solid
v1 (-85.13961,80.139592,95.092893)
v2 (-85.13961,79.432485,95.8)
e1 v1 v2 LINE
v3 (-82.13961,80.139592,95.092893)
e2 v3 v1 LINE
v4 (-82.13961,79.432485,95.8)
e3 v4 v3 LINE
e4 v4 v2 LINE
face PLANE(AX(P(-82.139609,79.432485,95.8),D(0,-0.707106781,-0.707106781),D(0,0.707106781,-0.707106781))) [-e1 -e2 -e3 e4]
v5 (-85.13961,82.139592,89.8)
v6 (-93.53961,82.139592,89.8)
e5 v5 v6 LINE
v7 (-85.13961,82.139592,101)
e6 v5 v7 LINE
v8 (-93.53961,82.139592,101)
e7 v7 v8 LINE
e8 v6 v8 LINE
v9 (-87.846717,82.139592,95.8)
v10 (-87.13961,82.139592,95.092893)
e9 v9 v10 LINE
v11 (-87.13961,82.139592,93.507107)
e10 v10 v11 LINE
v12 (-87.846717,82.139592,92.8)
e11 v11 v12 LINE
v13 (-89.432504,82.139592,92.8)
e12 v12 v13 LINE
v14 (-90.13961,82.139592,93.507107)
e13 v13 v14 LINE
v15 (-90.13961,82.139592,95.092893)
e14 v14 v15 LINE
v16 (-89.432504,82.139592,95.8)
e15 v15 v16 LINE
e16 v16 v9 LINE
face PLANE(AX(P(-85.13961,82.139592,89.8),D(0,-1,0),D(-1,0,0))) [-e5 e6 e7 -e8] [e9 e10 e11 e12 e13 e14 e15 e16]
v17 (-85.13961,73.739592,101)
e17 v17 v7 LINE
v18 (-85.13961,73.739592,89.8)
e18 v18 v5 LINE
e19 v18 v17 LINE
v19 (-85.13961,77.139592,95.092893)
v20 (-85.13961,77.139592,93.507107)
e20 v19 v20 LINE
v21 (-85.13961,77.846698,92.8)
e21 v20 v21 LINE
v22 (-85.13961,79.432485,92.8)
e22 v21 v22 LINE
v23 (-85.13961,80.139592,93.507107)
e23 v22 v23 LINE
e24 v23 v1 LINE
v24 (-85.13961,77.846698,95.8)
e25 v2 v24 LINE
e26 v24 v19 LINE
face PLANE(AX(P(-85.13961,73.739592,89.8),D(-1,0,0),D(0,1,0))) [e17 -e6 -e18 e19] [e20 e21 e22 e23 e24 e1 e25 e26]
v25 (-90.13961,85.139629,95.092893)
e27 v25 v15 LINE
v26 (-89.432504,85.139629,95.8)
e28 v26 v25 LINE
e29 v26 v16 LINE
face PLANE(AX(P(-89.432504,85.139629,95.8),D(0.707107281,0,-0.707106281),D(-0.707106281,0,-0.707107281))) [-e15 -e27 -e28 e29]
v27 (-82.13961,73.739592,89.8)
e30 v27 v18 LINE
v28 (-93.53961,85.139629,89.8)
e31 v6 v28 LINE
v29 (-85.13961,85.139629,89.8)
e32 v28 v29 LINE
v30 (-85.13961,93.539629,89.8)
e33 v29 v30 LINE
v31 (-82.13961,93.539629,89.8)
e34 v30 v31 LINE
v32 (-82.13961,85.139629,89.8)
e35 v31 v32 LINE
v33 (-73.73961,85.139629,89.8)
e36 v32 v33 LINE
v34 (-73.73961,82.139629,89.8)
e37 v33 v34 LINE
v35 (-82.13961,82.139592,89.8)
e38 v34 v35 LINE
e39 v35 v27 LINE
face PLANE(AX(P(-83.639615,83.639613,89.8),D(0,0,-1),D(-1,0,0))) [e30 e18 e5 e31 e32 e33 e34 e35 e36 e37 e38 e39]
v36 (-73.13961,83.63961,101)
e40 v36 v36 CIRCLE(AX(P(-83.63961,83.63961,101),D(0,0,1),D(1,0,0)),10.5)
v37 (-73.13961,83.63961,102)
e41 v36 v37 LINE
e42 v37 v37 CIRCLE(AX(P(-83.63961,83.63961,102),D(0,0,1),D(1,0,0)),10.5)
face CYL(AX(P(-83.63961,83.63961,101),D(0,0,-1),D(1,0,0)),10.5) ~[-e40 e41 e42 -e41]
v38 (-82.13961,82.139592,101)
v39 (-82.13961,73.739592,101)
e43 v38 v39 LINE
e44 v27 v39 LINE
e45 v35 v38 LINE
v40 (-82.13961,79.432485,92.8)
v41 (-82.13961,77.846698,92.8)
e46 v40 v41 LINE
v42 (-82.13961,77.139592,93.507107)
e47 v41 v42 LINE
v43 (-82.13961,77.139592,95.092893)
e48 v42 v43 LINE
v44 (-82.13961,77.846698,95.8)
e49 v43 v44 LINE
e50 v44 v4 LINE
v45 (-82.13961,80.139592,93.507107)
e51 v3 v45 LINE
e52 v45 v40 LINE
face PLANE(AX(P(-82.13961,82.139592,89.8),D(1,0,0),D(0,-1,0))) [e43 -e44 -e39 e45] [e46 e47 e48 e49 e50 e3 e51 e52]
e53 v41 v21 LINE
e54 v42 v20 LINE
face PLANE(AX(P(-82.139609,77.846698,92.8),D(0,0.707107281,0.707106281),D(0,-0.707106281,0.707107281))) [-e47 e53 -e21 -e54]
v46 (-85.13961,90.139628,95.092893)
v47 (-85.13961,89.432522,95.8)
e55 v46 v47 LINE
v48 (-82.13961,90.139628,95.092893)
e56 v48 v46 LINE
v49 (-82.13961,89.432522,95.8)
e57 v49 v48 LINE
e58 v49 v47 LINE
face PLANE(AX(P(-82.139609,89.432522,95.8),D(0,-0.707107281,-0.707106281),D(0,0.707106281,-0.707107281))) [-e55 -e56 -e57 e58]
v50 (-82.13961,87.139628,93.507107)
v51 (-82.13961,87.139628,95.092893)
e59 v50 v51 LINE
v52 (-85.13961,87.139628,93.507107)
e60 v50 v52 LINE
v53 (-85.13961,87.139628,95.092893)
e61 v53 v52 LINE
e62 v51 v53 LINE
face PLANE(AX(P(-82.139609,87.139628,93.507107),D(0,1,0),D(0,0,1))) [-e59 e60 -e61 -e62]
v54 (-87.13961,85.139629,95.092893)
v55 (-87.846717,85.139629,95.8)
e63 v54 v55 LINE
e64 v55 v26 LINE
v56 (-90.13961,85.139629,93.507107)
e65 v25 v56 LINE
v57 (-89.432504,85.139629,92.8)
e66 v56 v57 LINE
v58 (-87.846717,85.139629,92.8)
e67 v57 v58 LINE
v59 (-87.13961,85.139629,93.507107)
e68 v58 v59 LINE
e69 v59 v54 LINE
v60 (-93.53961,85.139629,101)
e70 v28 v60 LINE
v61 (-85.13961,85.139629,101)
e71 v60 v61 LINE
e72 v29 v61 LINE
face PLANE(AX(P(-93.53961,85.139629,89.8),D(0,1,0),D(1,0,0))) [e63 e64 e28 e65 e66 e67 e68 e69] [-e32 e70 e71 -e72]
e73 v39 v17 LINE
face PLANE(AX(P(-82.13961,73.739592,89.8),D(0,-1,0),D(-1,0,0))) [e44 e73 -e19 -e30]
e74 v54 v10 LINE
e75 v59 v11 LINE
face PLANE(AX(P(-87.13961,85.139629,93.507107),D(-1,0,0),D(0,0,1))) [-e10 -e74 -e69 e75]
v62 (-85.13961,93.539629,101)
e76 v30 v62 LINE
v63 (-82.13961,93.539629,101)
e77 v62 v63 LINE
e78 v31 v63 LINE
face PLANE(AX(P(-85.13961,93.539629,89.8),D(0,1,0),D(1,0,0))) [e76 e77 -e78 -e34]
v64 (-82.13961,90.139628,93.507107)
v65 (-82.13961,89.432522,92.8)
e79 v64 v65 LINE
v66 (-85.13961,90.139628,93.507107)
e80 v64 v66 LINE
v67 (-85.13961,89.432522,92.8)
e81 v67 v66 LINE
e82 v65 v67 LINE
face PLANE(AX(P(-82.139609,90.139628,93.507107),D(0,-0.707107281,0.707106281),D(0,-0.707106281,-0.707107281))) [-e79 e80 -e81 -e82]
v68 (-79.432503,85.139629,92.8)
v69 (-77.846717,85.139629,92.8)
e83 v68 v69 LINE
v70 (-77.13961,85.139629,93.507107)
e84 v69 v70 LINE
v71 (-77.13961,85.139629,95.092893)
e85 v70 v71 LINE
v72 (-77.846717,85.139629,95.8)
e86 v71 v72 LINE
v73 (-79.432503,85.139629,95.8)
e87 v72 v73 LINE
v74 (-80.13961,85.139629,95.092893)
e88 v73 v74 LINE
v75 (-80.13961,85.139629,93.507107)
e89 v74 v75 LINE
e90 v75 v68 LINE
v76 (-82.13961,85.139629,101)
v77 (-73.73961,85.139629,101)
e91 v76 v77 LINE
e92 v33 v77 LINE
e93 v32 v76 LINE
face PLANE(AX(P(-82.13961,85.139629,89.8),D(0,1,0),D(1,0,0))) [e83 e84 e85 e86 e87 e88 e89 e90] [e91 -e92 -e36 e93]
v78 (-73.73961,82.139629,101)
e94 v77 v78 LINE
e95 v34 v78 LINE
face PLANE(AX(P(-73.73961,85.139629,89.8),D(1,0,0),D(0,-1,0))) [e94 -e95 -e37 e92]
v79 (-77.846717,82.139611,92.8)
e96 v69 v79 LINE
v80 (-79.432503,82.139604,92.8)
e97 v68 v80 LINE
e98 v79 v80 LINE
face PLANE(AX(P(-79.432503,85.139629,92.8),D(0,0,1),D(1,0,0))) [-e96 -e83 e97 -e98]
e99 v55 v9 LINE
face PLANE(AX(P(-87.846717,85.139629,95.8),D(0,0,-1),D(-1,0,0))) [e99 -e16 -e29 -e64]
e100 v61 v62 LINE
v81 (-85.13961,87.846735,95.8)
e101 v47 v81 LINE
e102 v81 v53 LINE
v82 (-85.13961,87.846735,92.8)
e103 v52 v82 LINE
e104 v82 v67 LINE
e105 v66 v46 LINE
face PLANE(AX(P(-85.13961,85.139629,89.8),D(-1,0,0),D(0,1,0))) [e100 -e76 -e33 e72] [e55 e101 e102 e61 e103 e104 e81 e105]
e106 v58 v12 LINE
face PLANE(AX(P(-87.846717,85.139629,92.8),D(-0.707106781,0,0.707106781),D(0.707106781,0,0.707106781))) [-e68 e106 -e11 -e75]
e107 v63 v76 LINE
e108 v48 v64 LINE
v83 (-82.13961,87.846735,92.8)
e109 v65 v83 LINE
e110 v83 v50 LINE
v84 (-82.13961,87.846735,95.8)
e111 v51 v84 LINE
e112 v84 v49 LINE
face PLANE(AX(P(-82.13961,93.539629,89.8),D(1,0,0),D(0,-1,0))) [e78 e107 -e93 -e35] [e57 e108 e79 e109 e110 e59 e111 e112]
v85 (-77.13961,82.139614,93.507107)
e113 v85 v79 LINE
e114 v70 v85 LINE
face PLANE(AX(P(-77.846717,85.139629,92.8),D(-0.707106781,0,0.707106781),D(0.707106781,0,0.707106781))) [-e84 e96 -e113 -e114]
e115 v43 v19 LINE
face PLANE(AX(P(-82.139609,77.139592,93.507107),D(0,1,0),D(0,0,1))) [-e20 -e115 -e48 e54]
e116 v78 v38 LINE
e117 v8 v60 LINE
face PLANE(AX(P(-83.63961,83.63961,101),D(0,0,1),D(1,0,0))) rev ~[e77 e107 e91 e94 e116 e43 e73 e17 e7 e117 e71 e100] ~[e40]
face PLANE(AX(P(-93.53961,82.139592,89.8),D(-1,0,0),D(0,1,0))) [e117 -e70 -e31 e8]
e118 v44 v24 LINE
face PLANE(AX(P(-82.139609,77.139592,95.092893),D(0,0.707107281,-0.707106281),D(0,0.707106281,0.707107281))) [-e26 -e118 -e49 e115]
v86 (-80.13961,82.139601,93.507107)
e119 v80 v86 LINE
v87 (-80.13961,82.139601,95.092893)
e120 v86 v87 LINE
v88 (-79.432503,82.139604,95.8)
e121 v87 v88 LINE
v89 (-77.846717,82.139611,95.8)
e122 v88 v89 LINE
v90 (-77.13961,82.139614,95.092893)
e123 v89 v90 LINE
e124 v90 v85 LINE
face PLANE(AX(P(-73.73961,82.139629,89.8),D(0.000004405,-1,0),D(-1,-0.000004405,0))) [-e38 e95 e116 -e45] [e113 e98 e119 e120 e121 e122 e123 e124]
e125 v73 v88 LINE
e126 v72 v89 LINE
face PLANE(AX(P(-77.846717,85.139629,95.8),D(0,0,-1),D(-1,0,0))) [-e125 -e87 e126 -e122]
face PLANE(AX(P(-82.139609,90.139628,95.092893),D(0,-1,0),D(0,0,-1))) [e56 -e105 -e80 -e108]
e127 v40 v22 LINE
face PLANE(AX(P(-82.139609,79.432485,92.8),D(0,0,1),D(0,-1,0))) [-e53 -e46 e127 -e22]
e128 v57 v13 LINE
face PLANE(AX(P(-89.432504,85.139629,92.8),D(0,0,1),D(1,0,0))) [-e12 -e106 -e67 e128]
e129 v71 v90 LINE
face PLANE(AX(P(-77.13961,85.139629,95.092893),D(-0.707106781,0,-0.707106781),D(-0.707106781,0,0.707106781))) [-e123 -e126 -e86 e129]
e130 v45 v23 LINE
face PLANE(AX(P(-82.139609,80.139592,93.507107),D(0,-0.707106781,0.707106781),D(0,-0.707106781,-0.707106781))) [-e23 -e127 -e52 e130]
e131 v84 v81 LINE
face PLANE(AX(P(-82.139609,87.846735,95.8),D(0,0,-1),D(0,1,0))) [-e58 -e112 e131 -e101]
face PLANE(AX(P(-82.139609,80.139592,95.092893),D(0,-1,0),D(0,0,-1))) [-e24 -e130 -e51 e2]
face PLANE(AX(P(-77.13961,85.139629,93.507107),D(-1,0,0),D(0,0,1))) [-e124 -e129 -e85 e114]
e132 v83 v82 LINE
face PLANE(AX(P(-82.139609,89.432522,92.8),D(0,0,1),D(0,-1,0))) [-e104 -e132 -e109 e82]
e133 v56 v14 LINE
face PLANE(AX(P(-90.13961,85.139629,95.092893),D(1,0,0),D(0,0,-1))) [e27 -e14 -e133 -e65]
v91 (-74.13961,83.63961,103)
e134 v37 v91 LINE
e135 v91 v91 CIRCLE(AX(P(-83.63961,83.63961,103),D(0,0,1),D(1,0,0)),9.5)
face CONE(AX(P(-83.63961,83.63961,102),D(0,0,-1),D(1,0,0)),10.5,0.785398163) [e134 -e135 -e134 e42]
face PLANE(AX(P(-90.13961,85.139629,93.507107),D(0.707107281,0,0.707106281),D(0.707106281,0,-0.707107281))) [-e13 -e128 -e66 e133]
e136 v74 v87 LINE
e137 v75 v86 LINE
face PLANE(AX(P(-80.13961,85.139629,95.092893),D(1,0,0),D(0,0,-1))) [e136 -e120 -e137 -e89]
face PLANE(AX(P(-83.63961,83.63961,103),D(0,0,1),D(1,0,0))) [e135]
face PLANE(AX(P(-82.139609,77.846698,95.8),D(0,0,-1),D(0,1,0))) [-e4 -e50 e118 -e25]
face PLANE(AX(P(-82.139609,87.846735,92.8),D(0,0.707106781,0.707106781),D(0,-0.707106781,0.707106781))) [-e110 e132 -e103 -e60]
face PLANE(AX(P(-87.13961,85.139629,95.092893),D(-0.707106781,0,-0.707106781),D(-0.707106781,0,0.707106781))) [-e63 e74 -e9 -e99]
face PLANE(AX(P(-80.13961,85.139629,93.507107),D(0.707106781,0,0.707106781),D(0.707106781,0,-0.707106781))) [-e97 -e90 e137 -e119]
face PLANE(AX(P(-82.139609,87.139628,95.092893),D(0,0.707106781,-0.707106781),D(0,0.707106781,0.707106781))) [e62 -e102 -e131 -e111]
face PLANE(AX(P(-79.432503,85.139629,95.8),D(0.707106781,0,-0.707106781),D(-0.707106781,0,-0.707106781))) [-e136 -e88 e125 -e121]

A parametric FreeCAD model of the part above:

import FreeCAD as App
import Part
import Sketcher
from FreeCAD import Vector


def edges_at(feature, points):
    """Names of the edges that pass closest to the given points."""
    edges = feature.Shape.Edges
    near = lambda p: min(range(len(edges)), key=lambda i: edges[i].distToShape(Part.Vertex(*p))[0])
    return sorted({f"Edge{near(p) + 1}" for p in points})


def add_polygon(sketch, points):
    """Adds a closed chain of lines whose ends are joined by coincident constraints."""
    first, n = sketch.GeometryCount, len(points)
    for a, b in zip(points, points[1:] + points[:1]):
        sketch.addGeometry(Part.LineSegment(App.Vector(*a, 0), App.Vector(*b, 0)), False)
    for i in range(n):
        sketch.addConstraint(Sketcher.Constraint("Coincident", first + i, 2, first + (i + 1) % n, 1))

doc = App.newDocument("Part")
body = doc.addObject("PartDesign::Body", "Body")

# Sketch on XY plane
sketch1 = doc.addObject("Sketcher::SketchObject", "Sketch")
body.addObject(sketch1)
sketch1.AttachmentSupport = (doc.XY_Plane, [""])
sketch1.MapMode = "FlatFace"
sketch1.AttachmentOffset = App.Placement(Vector(0, 0, 89.8), App.Rotation())
add_polygon(sketch1, [(-82.1, 93.5), (-85.1, 93.5), (-85.1, 85.1), (-93.5, 85.1), (-93.5, 82.1), (-85.1, 82.1), (-85.1, 73.7), (-82.1, 73.7), (-82.1, 82.1), (-73.7, 82.1), (-73.7, 85.1), (-82.1, 85.1)])  # lines 0-11
sketch1.addConstraint(Sketcher.Constraint("Horizontal", 0))
sketch1.addConstraint(Sketcher.Constraint("Vertical", 1))
sketch1.addConstraint(Sketcher.Constraint("Horizontal", 2))
sketch1.addConstraint(Sketcher.Constraint("Vertical", 3))
sketch1.addConstraint(Sketcher.Constraint("Horizontal", 4))
sketch1.addConstraint(Sketcher.Constraint("Vertical", 5))
sketch1.addConstraint(Sketcher.Constraint("Horizontal", 6))
sketch1.addConstraint(Sketcher.Constraint("Vertical", 7))
sketch1.addConstraint(Sketcher.Constraint("Vertical", 9))
sketch1.addConstraint(Sketcher.Constraint("Horizontal", 10))
sketch1.addConstraint(Sketcher.Constraint("Vertical", 11))
sketch1.addConstraint(Sketcher.Constraint("Horizontal", 4, 2, 7, 2))
sketch1.addConstraint(Sketcher.Constraint("Horizontal", 2, 2, 9, 2))
sketch1.addConstraint(Sketcher.Constraint("Vertical", 1, 2, 4, 2))
sketch1.addConstraint(Sketcher.Constraint("Vertical", 7, 2, 10, 2))
sketch1.addConstraint(Sketcher.Constraint("Equal", 4, 10))
sketch1.addConstraint(Sketcher.Constraint("Equal", 10, 1))
sketch1.addConstraint(Sketcher.Constraint("Equal", 1, 5))
sketch1.addConstraint(Sketcher.Constraint("Equal", 6, 9))
sketch1.addConstraint(Sketcher.Constraint("DistanceX", 0, 2, 0, 1, 3.0))
sketch1.addConstraint(Sketcher.Constraint("DistanceX", 2, 2, 2, 1, 8.4))
sketch1.addConstraint(Sketcher.Constraint("DistanceY", 3, 2, 3, 1, 3.000037))
sketch1.addConstraint(Sketcher.Constraint("DistanceX", 0, 2, -1, 1, 85.13961))
sketch1.addConstraint(Sketcher.Constraint("DistanceY", -1, 1, 0, 2, 93.539629))
pad1 = doc.addObject("PartDesign::Pad", "Pad")
body.addObject(pad1)
pad1.Profile = sketch1
pad1.Length = 11.2

# Sketch on XY plane
sketch2 = doc.addObject("Sketcher::SketchObject", "Sketch001")
body.addObject(sketch2)
sketch2.AttachmentSupport = (doc.XY_Plane, [""])
sketch2.MapMode = "FlatFace"
sketch2.AttachmentOffset = App.Placement(Vector(0, 0, 101), App.Rotation())
sketch2.addGeometry(Part.Circle(Vector(-84, 84, 0), Vector(0, 0, 1), 10), False)
sketch2.addConstraint(Sketcher.Constraint("Diameter", 0, 21.0))
sketch2.addConstraint(Sketcher.Constraint("DistanceX", 0, 3, -1, 1, 83.63961))
sketch2.addConstraint(Sketcher.Constraint("DistanceY", -1, 1, 0, 3, 83.63961))
pad2 = doc.addObject("PartDesign::Pad", "Pad001")
body.addObject(pad2)
pad2.Profile = sketch2
pad2.Length = 2
doc.recompute()

chamfer = doc.addObject("PartDesign::Chamfer", "Chamfer")
body.addObject(chamfer)
chamfer.Base = (pad2, edges_at(pad2, [(-94.14, 83.64, 103)]))
chamfer.Size = 1

# Sketch on XZ plane
sketch3 = doc.addObject("Sketcher::SketchObject", "Sketch002")
body.addObject(sketch3)
sketch3.AttachmentSupport = (doc.XZ_Plane, [""])
sketch3.MapMode = "FlatFace"
sketch3.AttachmentOffset = App.Placement(Vector(0, 0, -85.139629), App.Rotation())
add_polygon(sketch3, [(-79.4, 95.8), (-77.8, 95.8), (-77.1, 95.1), (-77.1, 93.5), (-77.8, 92.8), (-79.4, 92.8), (-80.1, 93.5), (-80.1, 95.1)])  # lines 0-7
add_polygon(sketch3, [(-87.8, 95.8), (-87.1, 95.1), (-87.1, 93.5), (-87.8, 92.8), (-89.4, 92.8), (-90.1, 93.5), (-90.1, 95.1), (-89.4, 95.8)])  # lines 8-15
sketch3.addConstraint(Sketcher.Constraint("Horizontal", 0))
sketch3.addConstraint(Sketcher.Constraint("Vertical", 2))
sketch3.addConstraint(Sketcher.Constraint("Horizontal", 4))
sketch3.addConstraint(Sketcher.Constraint("Vertical", 6))
sketch3.addConstraint(Sketcher.Constraint("Vertical", 9))
sketch3.addConstraint(Sketcher.Constraint("Horizontal", 11))
sketch3.addConstraint(Sketcher.Constraint("Vertical", 13))
sketch3.addConstraint(Sketcher.Constraint("Horizontal", 15))
sketch3.addConstraint(Sketcher.Constraint("Perpendicular", 1, 3))
sketch3.addConstraint(Sketcher.Constraint("Perpendicular", 3, 5))
sketch3.addConstraint(Sketcher.Constraint("Perpendicular", 5, 7))
sketch3.addConstraint(Sketcher.Constraint("Perpendicular", 7, 8))
sketch3.addConstraint(Sketcher.Constraint("Perpendicular", 8, 10))
sketch3.addConstraint(Sketcher.Constraint("Perpendicular", 10, 12))
sketch3.addConstraint(Sketcher.Constraint("Perpendicular", 12, 14))
sketch3.addConstraint(Sketcher.Constraint("Horizontal", 2, 2, 5, 2))
sketch3.addConstraint(Sketcher.Constraint("Horizontal", 1, 2, 6, 2))
sketch3.addConstraint(Sketcher.Constraint("Horizontal", 6, 2, 8, 2))
sketch3.addConstraint(Sketcher.Constraint("Horizontal", 5, 2, 9, 2))
sketch3.addConstraint(Sketcher.Constraint("Horizontal", 4, 2, 10, 2))
sketch3.addConstraint(Sketcher.Constraint("Horizontal", 9, 2, 12, 2))
sketch3.addConstraint(Sketcher.Constraint("Horizontal", 8, 2, 13, 2))
sketch3.addConstraint(Sketcher.Constraint("Horizontal", 7, 2, 14, 2))
sketch3.addConstraint(Sketcher.Constraint("Vertical", 0, 2, 3, 2))
sketch3.addConstraint(Sketcher.Constraint("Vertical", 4, 2, 7, 2))
sketch3.addConstraint(Sketcher.Constraint("Equal", 4, 11))
sketch3.addConstraint(Sketcher.Constraint("Equal", 15, 2))
sketch3.addConstraint(Sketcher.Constraint("Distance", 1, 1.0))
sketch3.addConstraint(Sketcher.Constraint("DistanceY", 3, 2, 0, 2, 3.0))
sketch3.addConstraint(Sketcher.Constraint("DistanceX", 8, 2, 6, 2, 7.0))
sketch3.addConstraint(Sketcher.Constraint("DistanceY", -1, 1, 0, 2, 95.8))
sketch3.addConstraint(Sketcher.Constraint("DistanceX", 1, 2, -1, 1, 77.13961))
pocket1 = doc.addObject("PartDesign::Pocket", "Pocket")
body.addObject(pocket1)
pocket1.Profile = sketch3
pocket1.Type = "ThroughAll"
pocket1.Reversed = True

# Sketch on YZ plane
sketch4 = doc.addObject("Sketcher::SketchObject", "Sketch003")
body.addObject(sketch4)
sketch4.AttachmentSupport = (doc.YZ_Plane, [""])
sketch4.MapMode = "FlatFace"
sketch4.AttachmentOffset = App.Placement(Vector(0, 0, -82.139609), App.Rotation())
add_polygon(sketch4, [(89.4, 95.8), (87.8, 95.8), (87.1, 95.1), (87.1, 93.5), (87.8, 92.8), (89.4, 92.8), (90.1, 93.5), (90.1, 95.1)])  # lines 0-7
add_polygon(sketch4, [(79.4, 95.8), (77.8, 95.8), (77.1, 95.1), (77.1, 93.5), (77.8, 92.8), (79.4, 92.8), (80.1, 93.5), (80.1, 95.1)])  # lines 8-15
sketch4.addConstraint(Sketcher.Constraint("Horizontal", 0))
sketch4.addConstraint(Sketcher.Constraint("Vertical", 2))
sketch4.addConstraint(Sketcher.Constraint("Horizontal", 4))
sketch4.addConstraint(Sketcher.Constraint("Vertical", 6))
sketch4.addConstraint(Sketcher.Constraint("Horizontal", 8))
sketch4.addConstraint(Sketcher.Constraint("Vertical", 10))
sketch4.addConstraint(Sketcher.Constraint("Horizontal", 12))
sketch4.addConstraint(Sketcher.Constraint("Vertical", 14))
sketch4.addConstraint(Sketcher.Constraint("Perpendicular", 1, 3))
sketch4.addConstraint(Sketcher.Constraint("Perpendicular", 3, 5))
sketch4.addConstraint(Sketcher.Constraint("Perpendicular", 5, 7))
sketch4.addConstraint(Sketcher.Constraint("Perpendicular", 7, 9))
sketch4.addConstraint(Sketcher.Constraint("Perpendicular", 9, 11))
sketch4.addConstraint(Sketcher.Constraint("Perpendicular", 11, 13))
sketch4.addConstraint(Sketcher.Constraint("Perpendicular", 13, 15))
sketch4.addConstraint(Sketcher.Constraint("Horizontal", 2, 2, 5, 2))
sketch4.addConstraint(Sketcher.Constraint("Horizontal", 1, 2, 6, 2))
sketch4.addConstraint(Sketcher.Constraint("Horizontal", 7, 2, 8, 2))
sketch4.addConstraint(Sketcher.Constraint("Horizontal", 6, 2, 9, 2))
sketch4.addConstraint(Sketcher.Constraint("Horizontal", 5, 2, 10, 2))
sketch4.addConstraint(Sketcher.Constraint("Horizontal", 4, 2, 11, 2))
sketch4.addConstraint(Sketcher.Constraint("Horizontal", 10, 2, 13, 2))
sketch4.addConstraint(Sketcher.Constraint("Horizontal", 9, 2, 14, 2))
sketch4.addConstraint(Sketcher.Constraint("Vertical", 0, 2, 3, 2))
sketch4.addConstraint(Sketcher.Constraint("Vertical", 4, 2, 7, 2))
sketch4.addConstraint(Sketcher.Constraint("Equal", 4, 8))
sketch4.addConstraint(Sketcher.Constraint("Equal", 12, 2))
sketch4.addConstraint(Sketcher.Constraint("Distance", 1, 1.0))
sketch4.addConstraint(Sketcher.Constraint("DistanceY", 3, 2, 0, 2, 3.0))
sketch4.addConstraint(Sketcher.Constraint("DistanceY", -1, 1, 0, 2, 95.8))
sketch4.addConstraint(Sketcher.Constraint("DistanceX", -1, 1, 8, 2, 77.846698))
sketch4.addConstraint(Sketcher.Constraint("DistanceX", -1, 1, 1, 2, 87.139628))
pocket2 = doc.addObject("PartDesign::Pocket", "Pocket001")
body.addObject(pocket2)
pocket2.Profile = sketch4
pocket2.Type = "ThroughAll"

doc.recompute()
